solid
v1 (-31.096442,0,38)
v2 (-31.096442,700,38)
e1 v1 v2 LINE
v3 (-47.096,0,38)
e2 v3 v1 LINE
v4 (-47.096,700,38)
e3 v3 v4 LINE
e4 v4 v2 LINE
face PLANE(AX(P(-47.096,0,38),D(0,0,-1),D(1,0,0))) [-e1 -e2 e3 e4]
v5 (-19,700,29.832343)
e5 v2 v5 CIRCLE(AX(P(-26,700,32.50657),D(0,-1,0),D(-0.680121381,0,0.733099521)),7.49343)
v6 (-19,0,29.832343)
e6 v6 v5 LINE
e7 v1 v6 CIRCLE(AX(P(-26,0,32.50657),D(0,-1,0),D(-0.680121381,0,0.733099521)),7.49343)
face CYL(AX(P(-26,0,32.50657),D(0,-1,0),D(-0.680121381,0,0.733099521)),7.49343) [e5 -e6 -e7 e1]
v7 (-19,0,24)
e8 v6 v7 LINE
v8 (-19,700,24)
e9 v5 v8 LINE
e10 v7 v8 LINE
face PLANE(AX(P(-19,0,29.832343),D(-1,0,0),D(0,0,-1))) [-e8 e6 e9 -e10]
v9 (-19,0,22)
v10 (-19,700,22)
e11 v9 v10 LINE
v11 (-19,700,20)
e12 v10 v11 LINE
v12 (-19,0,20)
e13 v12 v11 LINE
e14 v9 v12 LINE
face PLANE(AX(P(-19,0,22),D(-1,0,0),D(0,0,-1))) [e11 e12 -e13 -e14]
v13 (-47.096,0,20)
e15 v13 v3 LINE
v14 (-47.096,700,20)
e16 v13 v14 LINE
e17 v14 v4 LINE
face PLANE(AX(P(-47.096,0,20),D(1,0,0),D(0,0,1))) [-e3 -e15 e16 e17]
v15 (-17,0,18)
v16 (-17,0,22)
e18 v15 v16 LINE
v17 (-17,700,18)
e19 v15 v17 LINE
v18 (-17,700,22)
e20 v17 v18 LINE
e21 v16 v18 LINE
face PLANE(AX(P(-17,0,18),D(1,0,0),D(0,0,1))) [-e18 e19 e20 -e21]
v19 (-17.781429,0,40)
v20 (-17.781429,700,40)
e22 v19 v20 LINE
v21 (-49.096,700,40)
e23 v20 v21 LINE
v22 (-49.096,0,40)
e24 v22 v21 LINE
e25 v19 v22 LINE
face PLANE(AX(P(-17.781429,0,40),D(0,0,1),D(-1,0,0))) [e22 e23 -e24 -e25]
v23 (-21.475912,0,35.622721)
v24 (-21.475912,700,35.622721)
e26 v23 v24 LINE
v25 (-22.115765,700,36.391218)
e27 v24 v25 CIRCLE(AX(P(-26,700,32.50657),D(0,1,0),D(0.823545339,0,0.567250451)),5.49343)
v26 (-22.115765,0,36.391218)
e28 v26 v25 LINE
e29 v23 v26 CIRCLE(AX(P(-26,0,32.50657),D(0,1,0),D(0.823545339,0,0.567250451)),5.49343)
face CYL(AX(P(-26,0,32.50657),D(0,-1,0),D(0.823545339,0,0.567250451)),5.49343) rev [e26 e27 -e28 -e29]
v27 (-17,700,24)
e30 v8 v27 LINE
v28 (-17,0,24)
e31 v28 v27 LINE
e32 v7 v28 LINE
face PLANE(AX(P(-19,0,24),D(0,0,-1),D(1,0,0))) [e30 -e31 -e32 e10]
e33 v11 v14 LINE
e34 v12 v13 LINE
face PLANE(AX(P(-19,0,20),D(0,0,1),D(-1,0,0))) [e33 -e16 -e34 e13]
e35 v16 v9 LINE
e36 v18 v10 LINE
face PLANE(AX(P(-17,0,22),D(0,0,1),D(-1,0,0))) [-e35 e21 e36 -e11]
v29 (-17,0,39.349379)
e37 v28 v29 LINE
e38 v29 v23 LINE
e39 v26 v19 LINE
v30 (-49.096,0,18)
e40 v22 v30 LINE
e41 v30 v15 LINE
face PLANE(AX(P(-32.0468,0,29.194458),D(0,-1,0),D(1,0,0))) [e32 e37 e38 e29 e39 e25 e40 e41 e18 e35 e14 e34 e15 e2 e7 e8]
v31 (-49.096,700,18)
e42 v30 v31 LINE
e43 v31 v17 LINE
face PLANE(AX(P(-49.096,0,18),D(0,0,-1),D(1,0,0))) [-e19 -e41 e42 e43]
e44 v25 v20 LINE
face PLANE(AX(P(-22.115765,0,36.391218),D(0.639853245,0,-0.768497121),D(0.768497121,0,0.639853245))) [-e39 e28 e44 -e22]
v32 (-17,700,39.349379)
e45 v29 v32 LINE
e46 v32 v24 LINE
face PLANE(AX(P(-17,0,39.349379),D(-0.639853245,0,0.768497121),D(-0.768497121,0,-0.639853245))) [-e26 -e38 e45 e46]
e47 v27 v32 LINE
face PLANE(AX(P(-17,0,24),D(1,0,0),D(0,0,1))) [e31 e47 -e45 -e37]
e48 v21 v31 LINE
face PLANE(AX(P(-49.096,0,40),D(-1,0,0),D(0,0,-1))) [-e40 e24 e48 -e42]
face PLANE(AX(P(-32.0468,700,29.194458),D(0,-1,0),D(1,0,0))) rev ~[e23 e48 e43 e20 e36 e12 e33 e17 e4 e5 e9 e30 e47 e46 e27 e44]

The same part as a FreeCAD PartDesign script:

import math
import FreeCAD as App
import Part
import Sketcher
from FreeCAD import Vector


def add_polygon(sketch, points):
    """Adds a closed chain of lines whose ends are joined by coincident constraints."""
    first, n = sketch.GeometryCount, len(points)
    for a, b in zip(points, points[1:] + points[:1]):
        sketch.addGeometry(Part.LineSegment(App.Vector(*a, 0), App.Vector(*b, 0)), False)
    for i in range(n):
        sketch.addConstraint(Sketcher.Constraint("Coincident", first + i, 2, first + (i + 1) % n, 1))

doc = App.newDocument("Part")
body = doc.addObject("PartDesign::Body", "Body")

# Sketch on XZ plane
sketch1 = body.newObject("Sketcher::SketchObject", "Sketch")
sketch1.AttachmentSupport = (doc.getObject("XZ_Plane"), [""])
sketch1.MapMode = "FlatFace"
sketch1.addGeometry(Part.LineSegment(Vector(7.5, 37.974085, 0), Vector(7.5, 40, 0)), False)  # 0
sketch1.addGeometry(Part.LineSegment(Vector(7.5, 40, 0), Vector(-15, 40, 0)), False)  # 1
sketch1.addGeometry(Part.LineSegment(Vector(-15, 40, 0), Vector(-15, 24, 0)), False)  # 2
sketch1.addGeometry(Part.LineSegment(Vector(-15, 24, 0), Vector(-11, 24, 0)), False)  # 3
sketch1.addGeometry(Part.LineSegment(Vector(-11, 24, 0), Vector(-11, 26, 0)), False)  # 4
sketch1.addGeometry(Part.LineSegment(Vector(-11, 26, 0), Vector(-9, 26, 0)), False)  # 5
sketch1.addGeometry(Part.LineSegment(Vector(-9, 26, 0), Vector(-9, 20, 0)), False)  # 6
sketch1.addGeometry(Part.LineSegment(Vector(-9, 20, 0), Vector(-11, 20, 0)), False)  # 7
sketch1.addGeometry(Part.LineSegment(Vector(-11, 20, 0), Vector(-11, 22, 0)), False)  # 8
sketch1.addGeometry(Part.LineSegment(Vector(-11, 22, 0), Vector(-15, 22, 0)), False)  # 9
sketch1.addGeometry(Part.LineSegment(Vector(-15, 22, 0), Vector(-15, 7.7, 0)), False)  # 10
sketch1.addGeometry(Part.LineSegment(Vector(-15, 7.7, 0), Vector(-13, 7.7, 0)), False)  # 11
sketch1.addGeometry(Part.LineSegment(Vector(-13, 7.7, 0), Vector(-13, 11.492084, 0)), False)  # 12
sketch1.addGeometry(Part.LineSegment(Vector(-13, 11.492084, 0), Vector(-7, 11.492084, 0)), False)  # 13
sketch1.addGeometry(Part.LineSegment(Vector(-7, 11.492084, 0), Vector(-7, 3.7, 0)), False)  # 14
sketch1.addGeometry(Part.LineSegment(Vector(-7, 3.7, 0), Vector(-11, 3.7, 0)), False)  # 15
sketch1.addGeometry(Part.LineSegment(Vector(-11, 3.7, 0), Vector(-11, 5.7, 0)), False)  # 16
sketch1.addGeometry(Part.LineSegment(Vector(-11, 5.7, 0), Vector(-15, 5.7, 0)), False)  # 17
sketch1.addGeometry(Part.LineSegment(Vector(-15, 5.7, 0), Vector(-15, 0, 0)), False)  # 18
sketch1.addGeometry(Part.LineSegment(Vector(-15, 0, 0), Vector(-5, 0, 0)), False)  # 19
sketch1.addGeometry(Part.LineSegment(Vector(-5, 0, 0), Vector(-5, 13.492084, 0)), False)  # 20
sketch1.addGeometry(Part.LineSegment(Vector(-5, 13.492084, 0), Vector(-9.158894, 13.492084, 0)), False)  # 21
sketch1.addGeometry(Part.LineSegment(Vector(-9.158894, 13.492084, 0), Vector(-9.158894, 15.492084, 0)), False)  # 22
sketch1.addGeometry(Part.LineSegment(Vector(-9.158894, 15.492084, 0), Vector(1.5, 20, 0)), False)  # 23
sketch1.addGeometry(Part.LineSegment(Vector(1.5, 20, 0), Vector(10.841106, 15.492084, 0)), False)  # 24
sketch1.addGeometry(Part.LineSegment(Vector(10.841106, 15.492084, 0), Vector(10.841106, 13.492084, 0)), False)  # 25
sketch1.addGeometry(Part.LineSegment(Vector(10.841106, 13.492084, 0), Vector(8, 13.492084, 0)), False)  # 26
sketch1.addGeometry(Part.LineSegment(Vector(8, 13.492084, 0), Vector(8, 0, 0)), False)  # 27
sketch1.addGeometry(Part.LineSegment(Vector(8, 0, 0), Vector(17, 0, 0)), False)  # 28
sketch1.addGeometry(Part.LineSegment(Vector(17, 0, 0), Vector(17, 40, 0)), False)  # 29
sketch1.addGeometry(Part.LineSegment(Vector(17, 40, 0), Vector(8.5, 40, 0)), False)  # 30
sketch1.addGeometry(Part.LineSegment(Vector(8.5, 40, 0), Vector(8.5, 37.974085, 0)), False)  # 31
sketch1.addGeometry(Part.ArcOfCircle(Part.Circle(Vector(8, 32.50657, 0), Vector(0, 0, 1), 5.49033), math.radians(14.369826), math.radians(84.774879)), False)  # 32
sketch1.addGeometry(Part.LineSegment(Vector(13.318559, 33.869159, 0), Vector(13.431853, 31.707387, 0)), False)  # 33
sketch1.addGeometry(Part.ArcOfCircle(Part.Circle(Vector(8, 32.50657, 0), Vector(0, 0, 1), 5.49033), math.radians(95.225121), math.radians(351.630174)), False)  # 34
add_polygon(sketch1, [(-13, 18), (-8.363471, 18), (-11.158894, 16.817745), (-11.158894, 13.492084), (-13, 13.492084)])  # lines 35-39
sketch1.addGeometry(Part.LineSegment(Vector(-13, 28, 0), Vector(-13, 37.999999, 0)), False)  # 40
sketch1.addGeometry(Part.LineSegment(Vector(-13, 37.999999, 0), Vector(2.908116, 37.999999, 0)), False)  # 41
sketch1.addGeometry(Part.ArcOfCircle(Part.Circle(Vector(8, 32.50657, 0), Vector(0, 0, 1), 7.49033), math.radians(132.827575), math.radians(339.153685)), False)  # 42
sketch1.addGeometry(Part.LineSegment(Vector(15, 29.841043, 0), Vector(15, 2, 0)), False)  # 43
sketch1.addGeometry(Part.LineSegment(Vector(15, 2, 0), Vector(10, 2, 0)), False)  # 44
sketch1.addGeometry(Part.LineSegment(Vector(10, 2, 0), Vector(10, 12, 0)), False)  # 45
sketch1.addGeometry(Part.LineSegment(Vector(10, 12, 0), Vector(12.841106, 12, 0)), False)  # 46
sketch1.addGeometry(Part.LineSegment(Vector(12.841106, 12, 0), Vector(12.841106, 16.747619, 0)), False)  # 47
sketch1.addGeometry(Part.LineSegment(Vector(12.841106, 16.747619, 0), Vector(1.554336, 22.194492, 0)), False)  # 48
sketch1.addGeometry(Part.LineSegment(Vector(1.554336, 22.194492, 0), Vector(-7, 18.576646, 0)), False)  # 49
sketch1.addGeometry(Part.LineSegment(Vector(-7, 18.576646, 0), Vector(-7, 28, 0)), False)  # 50
sketch1.addGeometry(Part.LineSegment(Vector(-7, 28, 0), Vector(-13, 28, 0)), False)  # 51
sketch1.addGeometry(Part.ArcOfCircle(Part.Circle(Vector(7.999933, 32.506498, 0), Vector(0, 0, 1), 7.490429), math.radians(47.060637), math.radians(47.172425)), False)  # 52
sketch1.addGeometry(Part.LineSegment(Vector(13.091884, 37.999999, 0), Vector(13.102071, 37.999999, 0)), False)  # 53
sketch1.addGeometry(Part.LineSegment(Vector(13.102071, 37.999999, 0), Vector(13.102592, 37.990054, 0)), False)  # 54
sketch1.addConstraint([
    Sketcher.Constraint("Coincident", 0, 2, 1, 1),
    Sketcher.Constraint("Coincident", 1, 2, 2, 1),
    Sketcher.Constraint("Coincident", 2, 2, 3, 1),
    Sketcher.Constraint("Coincident", 3, 2, 4, 1),
    Sketcher.Constraint("Coincident", 4, 2, 5, 1),
    Sketcher.Constraint("Coincident", 5, 2, 6, 1),
    Sketcher.Constraint("Coincident", 6, 2, 7, 1),
    Sketcher.Constraint("Coincident", 7, 2, 8, 1),
    Sketcher.Constraint("Coincident", 8, 2, 9, 1),
    Sketcher.Constraint("Coincident", 9, 2, 10, 1),
    Sketcher.Constraint("Coincident", 10, 2, 11, 1),
    Sketcher.Constraint("Coincident", 11, 2, 12, 1),
    Sketcher.Constraint("Coincident", 12, 2, 13, 1),
    Sketcher.Constraint("Coincident", 13, 2, 14, 1),
    Sketcher.Constraint("Coincident", 14, 2, 15, 1),
    Sketcher.Constraint("Coincident", 15, 2, 16, 1),
    Sketcher.Constraint("Coincident", 16, 2, 17, 1),
    Sketcher.Constraint("Coincident", 17, 2, 18, 1),
    Sketcher.Constraint("Coincident", 18, 2, 19, 1),
    Sketcher.Constraint("Coincident", 19, 2, 20, 1),
    Sketcher.Constraint("Coincident", 20, 2, 21, 1),
    Sketcher.Constraint("Coincident", 21, 2, 22, 1),
    Sketcher.Constraint("Coincident", 22, 2, 23, 1),
    Sketcher.Constraint("Coincident", 23, 2, 24, 1),
    Sketcher.Constraint("Coincident", 24, 2, 25, 1),
    Sketcher.Constraint("Coincident", 25, 2, 26, 1),
    Sketcher.Constraint("Coincident", 26, 2, 27, 1),
    Sketcher.Constraint("Coincident", 27, 2, 28, 1),
    Sketcher.Constraint("Coincident", 28, 2, 29, 1),
    Sketcher.Constraint("Coincident", 29, 2, 30, 1),
    Sketcher.Constraint("Coincident", 30, 2, 31, 1),
    Sketcher.Constraint("Coincident", 31, 2, 32, 2),
    Sketcher.Constraint("Coincident", 32, 1, 33, 1),
    Sketcher.Constraint("Coincident", 33, 2, 34, 2),
    Sketcher.Constraint("Coincident", 34, 1, 0, 1),
    Sketcher.Constraint("Coincident", 40, 2, 41, 1),
    Sketcher.Constraint("Coincident", 41, 2, 42, 1),
    Sketcher.Constraint("Coincident", 42, 2, 43, 1),
    Sketcher.Constraint("Coincident", 43, 2, 44, 1),
    Sketcher.Constraint("Coincident", 44, 2, 45, 1),
    Sketcher.Constraint("Coincident", 45, 2, 46, 1),
    Sketcher.Constraint("Coincident", 46, 2, 47, 1),
    Sketcher.Constraint("Coincident", 47, 2, 48, 1),
    Sketcher.Constraint("Coincident", 48, 2, 49, 1),
    Sketcher.Constraint("Coincident", 49, 2, 50, 1),
    Sketcher.Constraint("Coincident", 50, 2, 51, 1),
    Sketcher.Constraint("Coincident", 51, 2, 40, 1),
    Sketcher.Constraint("Coincident", 52, 2, 53, 1),
    Sketcher.Constraint("Coincident", 53, 2, 54, 1),
    Sketcher.Constraint("Coincident", 54, 2, 52, 1),
    Sketcher.Constraint("Vertical", 0),
    Sketcher.Constraint("Horizontal", 1),
    Sketcher.Constraint("Vertical", 2),
    Sketcher.Constraint("Horizontal", 3),
    Sketcher.Constraint("Vertical", 4),
    Sketcher.Constraint("Horizontal", 5),
    Sketcher.Constraint("Vertical", 6),
    Sketcher.Constraint("Horizontal", 7),
    Sketcher.Constraint("Vertical", 8),
    Sketcher.Constraint("Horizontal", 9),
    Sketcher.Constraint("Vertical", 10),
    Sketcher.Constraint("Horizontal", 11),
    Sketcher.Constraint("Vertical", 12),
    Sketcher.Constraint("Horizontal", 13),
    Sketcher.Constraint("Vertical", 14),
    Sketcher.Constraint("Horizontal", 15),
    Sketcher.Constraint("Vertical", 16),
    Sketcher.Constraint("Horizontal", 17),
    Sketcher.Constraint("Vertical", 18),
    Sketcher.Constraint("Horizontal", 19),
    Sketcher.Constraint("Vertical", 20),
    Sketcher.Constraint("Horizontal", 21),
    Sketcher.Constraint("Vertical", 22),
    Sketcher.Constraint("Vertical", 25),
    Sketcher.Constraint("Horizontal", 26),
    Sketcher.Constraint("Vertical", 27),
    Sketcher.Constraint("Horizontal", 28),
    Sketcher.Constraint("Vertical", 29),
    Sketcher.Constraint("Horizontal", 30),
    Sketcher.Constraint("Vertical", 31),
    Sketcher.Constraint("Horizontal", 35),
    Sketcher.Constraint("Vertical", 37),
    Sketcher.Constraint("Horizontal", 38),
    Sketcher.Constraint("Vertical", 39),
    Sketcher.Constraint("Vertical", 40),
    Sketcher.Constraint("Horizontal", 41),
    Sketcher.Constraint("Vertical", 43),
    Sketcher.Constraint("Horizontal", 44),
    Sketcher.Constraint("Vertical", 45),
    Sketcher.Constraint("Horizontal", 46),
    Sketcher.Constraint("Vertical", 47),
    Sketcher.Constraint("Vertical", 50),
    Sketcher.Constraint("Horizontal", 51),
    Sketcher.Constraint("Horizontal", 53),
    Sketcher.Constraint("Coincident", 34, 3, 32, 3),
    Sketcher.Constraint("Coincident", 42, 3, 32, 3),
    Sketcher.Constraint("PointOnObject", 18, 2, -1),
    Sketcher.Constraint("PointOnObject", 27, 2, -1),
    Sketcher.Constraint("DistanceX", 3, 1, 3, 2, 4.0),
    Sketcher.Constraint("DistanceX", 5, 1, 5, 2, 2.0),
    Sketcher.Constraint("DistanceX", 7, 2, 7, 1, 2.0),
    Sketcher.Constraint("DistanceX", 9, 2, 9, 1, 4.0),
    Sketcher.Constraint("DistanceX", 11, 1, 11, 2, 2.0),
    Sketcher.Constraint("DistanceX", 13, 1, 13, 2, 6.0),
    Sketcher.Constraint("DistanceX", 15, 2, 15, 1, 4.0),
    Sketcher.Constraint("DistanceX", 17, 2, 17, 1, 4.0),
    Sketcher.Constraint("DistanceX", 19, 1, 19, 2, 10.0),
    Sketcher.Constraint("DistanceX", 28, 1, 28, 2, 9.0),
    Sketcher.Constraint("DistanceX", 44, 2, 44, 1, 5.0),
    Sketcher.Constraint("DistanceX", 51, 2, 51, 1, 6.0),
    Sketcher.Constraint("DistanceY", 2, 2, 2, 1, 16.0),
    Sketcher.Constraint("DistanceY", 4, 1, 4, 2, 2.0),
    Sketcher.Constraint("DistanceY", 6, 2, 6, 1, 6.0),
    Sketcher.Constraint("DistanceY", 8, 1, 8, 2, 2.0),
    Sketcher.Constraint("DistanceY", 16, 1, 16, 2, 2.0),
    Sketcher.Constraint("DistanceY", 22, 1, 22, 2, 2.0),
    Sketcher.Constraint("DistanceY", 25, 2, 25, 1, 2.0),
    Sketcher.Constraint("DistanceY", 29, 1, 29, 2, 40.0),
    Sketcher.Constraint("DistanceY", 40, 1, 40, 2, 9.999999),
    Sketcher.Constraint("DistanceY", 45, 1, 45, 2, 10.0),
    Sketcher.Constraint("DistanceX", 1, 2, 1, 1, 22.5),
    Sketcher.Constraint("DistanceX", 30, 2, 30, 1, 8.5),
    Sketcher.Constraint("DistanceY", 10, 2, 10, 1, 14.3),
    Sketcher.Constraint("DistanceY", 18, 2, 18, 1, 5.7),
    Sketcher.Constraint("DistanceX", -1, 1, 32, 3, 8.0),
    Sketcher.Constraint("DistanceY", -1, 1, 0, 2, 40.0),
    Sketcher.Constraint("DistanceX", 1, 2, -1, 1, 15.0),
    Sketcher.Constraint("DistanceY", -1, 1, 23, 2, 20.0),
    Sketcher.Constraint("DistanceX", -1, 1, 26, 2, 8.0),
    Sketcher.Constraint("DistanceY", -1, 1, 35, 2, 18.0),
    Sketcher.Constraint("DistanceX", 38, 2, -1, 1, 13.0),
    Sketcher.Constraint("DistanceX", 40, 2, -1, 1, 13.0),
    Sketcher.Constraint("DistanceY", -1, 1, 40, 2, 37.999999),
    Sketcher.Constraint("DistanceX", -1, 1, 42, 2, 15.0),
    Sketcher.Constraint("DistanceY", -1, 1, 43, 2, 2.0),
    Sketcher.Constraint("DistanceY", -1, 1, 52, 2, 37.999999),
    Sketcher.Constraint("DistanceY", 13, 2, 20, 2, 2.0),
    Sketcher.Constraint("DistanceY", 20, 2, 24, 2, 2.0),
    Sketcher.Constraint("DistanceX", 36, 2, 22, 2, 2.0),
    Sketcher.Constraint("DistanceY", 12, 2, 37, 2, 2.0),
    Sketcher.Constraint("DistanceX", 25, 2, 46, 2, 2.0),
    Sketcher.Constraint("DistanceX", -1, 1, 23, 2, 1.5),
    Sketcher.Constraint("Radius", 32, 5.49033),
    Sketcher.Constraint("Radius", 34, 5.49033),
    Sketcher.Constraint("Radius", 42, 7.49033),
    Sketcher.Constraint("Radius", 52, 7.490429),
    Sketcher.Constraint("DistanceX", 35, 1, 35, 2, 4.636529),
    Sketcher.Constraint("DistanceY", 37, 2, 37, 1, 3.325661),
    Sketcher.Constraint("DistanceY", 47, 1, 47, 2, 4.747619),
    Sketcher.Constraint("DistanceY", 36, 2, 49, 2, 1.758902),
    Sketcher.Constraint("Distance", 24, 10.37196),
    Sketcher.Constraint("Distance", 33, 2.164739),
    Sketcher.Constraint("Distance", 48, 12.532342),
    Sketcher.Constraint("Distance", 49, 9.287921),
    Sketcher.Constraint("Distance", 54, 0.009959),
    Sketcher.Constraint("DistanceX", 21, 2, 21, 1, 4.158894),
    Sketcher.Constraint("DistanceX", 26, 2, 26, 1, 2.841106),
    Sketcher.Constraint("DistanceX", 41, 1, 41, 2, 15.908116),
    Sketcher.Constraint("DistanceX", 53, 1, 53, 2, 0.010187),
    Sketcher.Constraint("DistanceX", -1, 1, 32, 1, 13.318559),
    Sketcher.Constraint("DistanceX", -1, 1, 53, 2, 13.102071),
    Sketcher.Constraint("DistanceY", 52, 3, 32, 1, 1.362661),
])
pad1 = body.newObject("PartDesign::Pad", "Pad")
pad1.Profile = sketch1
pad1.Length = 1910
pad1.Reversed = True

# Sketch on XZ plane
sketch2 = body.newObject("Sketcher::SketchObject", "Sketch001")
sketch2.AttachmentSupport = (doc.getObject("XZ_Plane"), [""])
sketch2.MapMode = "FlatFace"
add_polygon(sketch2, [(17, 0), (17, 40), (-15, 40), (-15, 0)])  # lines 0-3
sketch2.addConstraint([
    Sketcher.Constraint("Vertical", 0),
    Sketcher.Constraint("Horizontal", 1),
    Sketcher.Constraint("Vertical", 2),
    Sketcher.Constraint("Horizontal", 3),
    Sketcher.Constraint("PointOnObject", 2, 2, -1),
    Sketcher.Constraint("DistanceX", 1, 2, 1, 1, 32.0),
    Sketcher.Constraint("DistanceY", 0, 1, 0, 2, 40.0),
    Sketcher.Constraint("DistanceX", -1, 1, 0, 2, 17.0),
])
pocket1 = body.newObject("PartDesign::Pocket", "Pocket")
pocket1.Profile = sketch2
pocket1.Length = 2000
body2 = doc.addObject("PartDesign::Body", "Body001")

# Sketch on XZ plane
sketch3 = body2.newObject("Sketcher::SketchObject", "Sketch002")
sketch3.AttachmentSupport = (doc.getObject("XZ_Plane001"), [""])
sketch3.MapMode = "FlatFace"
sketch3.addGeometry([
    Part.LineSegment(Vector(-17.781429, 40, 0), Vector(-49.096, 40, 0)),  # 0
    Part.LineSegment(Vector(-49.096, 40, 0), Vector(-49.096, 18, 0)),  # 1
    Part.LineSegment(Vector(-49.096, 18, 0), Vector(-17, 18, 0)),  # 2
    Part.LineSegment(Vector(-17, 18, 0), Vector(-17, 22, 0)),  # 3
    Part.LineSegment(Vector(-17, 22, 0), Vector(-19, 22, 0)),  # 4
    Part.LineSegment(Vector(-19, 22, 0), Vector(-19, 20, 0)),  # 5
    Part.LineSegment(Vector(-19, 20, 0), Vector(-47.096, 20, 0)),  # 6
    Part.LineSegment(Vector(-47.096, 20, 0), Vector(-47.096, 38, 0)),  # 7
    Part.LineSegment(Vector(-47.096, 38, 0), Vector(-31.096442, 38, 0)),  # 8
    Part.ArcOfCircle(Part.Circle(Vector(-26, 32.50657, 0), Vector(0, 0, 1), 7.49343), math.radians(132.853129), math.radians(339.091522)),  # 9
    Part.LineSegment(Vector(-19, 29.832343, 0), Vector(-19, 24, 0)),  # 10
    Part.LineSegment(Vector(-19, 24, 0), Vector(-17, 24, 0)),  # 11
    Part.LineSegment(Vector(-17, 24, 0), Vector(-17, 39.349379, 0)),  # 12
    Part.LineSegment(Vector(-17, 39.349379, 0), Vector(-21.475912, 35.622721, 0)),  # 13
    Part.ArcOfCircle(Part.Circle(Vector(-26, 32.50657, 0), Vector(0, 0, 1), 5.49343), math.radians(45.003041), math.radians(394.558713)),  # 14
    Part.LineSegment(Vector(-22.115765, 36.391218, 0), Vector(-17.781429, 40, 0)),  # 15
], False)
sketch3.addConstraint([
    Sketcher.Constraint("Coincident", 0, 2, 1, 1),
    Sketcher.Constraint("Coincident", 1, 2, 2, 1),
    Sketcher.Constraint("Coincident", 2, 2, 3, 1),
    Sketcher.Constraint("Coincident", 3, 2, 4, 1),
    Sketcher.Constraint("Coincident", 4, 2, 5, 1),
    Sketcher.Constraint("Coincident", 5, 2, 6, 1),
    Sketcher.Constraint("Coincident", 6, 2, 7, 1),
    Sketcher.Constraint("Coincident", 7, 2, 8, 1),
    Sketcher.Constraint("Coincident", 8, 2, 9, 1),
    Sketcher.Constraint("Coincident", 9, 2, 10, 1),
    Sketcher.Constraint("Coincident", 10, 2, 11, 1),
    Sketcher.Constraint("Coincident", 11, 2, 12, 1),
    Sketcher.Constraint("Coincident", 12, 2, 13, 1),
    Sketcher.Constraint("Coincident", 13, 2, 14, 2),
    Sketcher.Constraint("Coincident", 14, 1, 15, 1),
    Sketcher.Constraint("Coincident", 15, 2, 0, 1),
    Sketcher.Constraint("Horizontal", 0),
    Sketcher.Constraint("Vertical", 1),
    Sketcher.Constraint("Horizontal", 2),
    Sketcher.Constraint("Vertical", 3),
    Sketcher.Constraint("Horizontal", 4),
    Sketcher.Constraint("Vertical", 5),
    Sketcher.Constraint("Horizontal", 6),
    Sketcher.Constraint("Vertical", 7),
    Sketcher.Constraint("Horizontal", 8),
    Sketcher.Constraint("Vertical", 10),
    Sketcher.Constraint("Horizontal", 11),
    Sketcher.Constraint("Vertical", 12),
    Sketcher.Constraint("Coincident", 14, 3, 9, 3),
    Sketcher.Constraint("Parallel", 13, 15),
    Sketcher.Constraint("Vertical", 5, 2, 9, 2),
    Sketcher.Constraint("Vertical", 3, 2, 11, 2),
    Sketcher.Constraint("Equal", 11, 5),
    Sketcher.Constraint("DistanceX", 4, 2, 4, 1, 2.0),
    Sketcher.Constraint("DistanceY", 1, 2, 1, 1, 22.0),
    Sketcher.Constraint("DistanceY", 3, 1, 3, 2, 4.0),
    Sketcher.Constraint("DistanceY", 7, 1, 7, 2, 18.0),
    Sketcher.Constraint("DistanceX", 9, 3, -1, 1, 26.0),
    Sketcher.Constraint("DistanceY", -1, 1, 0, 2, 40.0),
    Sketcher.Constraint("DistanceX", 2, 2, -1, 1, 17.0),
    Sketcher.Constraint("DistanceY", -1, 1, 10, 2, 24.0),
    Sketcher.Constraint("DistanceX", 1, 2, 6, 2, 2.0),
    Sketcher.Constraint("DistanceX", 2, 1, 2, 2, 32.096),
    Sketcher.Constraint("Radius", 9, 7.49343),
    Sketcher.Constraint("Radius", 14, 5.49343),
    Sketcher.Constraint("DistanceX", 0, 2, 0, 1, 31.314571),
    Sketcher.Constraint("DistanceX", 8, 1, 8, 2, 15.999558),
    Sketcher.Constraint("DistanceY", 12, 1, 12, 2, 15.349379),
    Sketcher.Constraint("Distance", 13, 5.82424),
])
pad2 = body2.newObject("PartDesign::Pad", "Pad001")
pad2.Profile = sketch3
pad2.Length = 700
pad2.Reversed = True

doc.recompute()
